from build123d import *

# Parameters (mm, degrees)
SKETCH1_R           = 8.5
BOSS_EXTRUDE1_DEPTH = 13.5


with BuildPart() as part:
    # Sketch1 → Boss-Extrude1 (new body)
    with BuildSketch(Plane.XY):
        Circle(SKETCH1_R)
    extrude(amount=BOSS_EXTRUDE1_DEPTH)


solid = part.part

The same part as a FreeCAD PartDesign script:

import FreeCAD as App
import Part
import Sketcher

V = App.Vector

doc = App.newDocument("Part")
body = doc.addObject("PartDesign::Body", "Body")

# Sketch on XY plane
sketch1 = body.newObject("Sketcher::SketchObject", "Sketch")
sketch1.AttachmentSupport = (doc.getObject("XY_Plane"), [""])
sketch1.MapMode = "FlatFace"
sketch1.addGeometry(Part.Circle(V(0, 0, 0), V(0, 0, 1), 8), False)
sketch1.addConstraint(Sketcher.Constraint("Coincident", 0, 3, -1, 1))
sketch1.addConstraint(Sketcher.Constraint("Diameter", 0, 17.0))
pad1 = body.newObject("PartDesign::Pad", "Pad")
pad1.Profile = sketch1
pad1.Length = 13.5

doc.recompute()
